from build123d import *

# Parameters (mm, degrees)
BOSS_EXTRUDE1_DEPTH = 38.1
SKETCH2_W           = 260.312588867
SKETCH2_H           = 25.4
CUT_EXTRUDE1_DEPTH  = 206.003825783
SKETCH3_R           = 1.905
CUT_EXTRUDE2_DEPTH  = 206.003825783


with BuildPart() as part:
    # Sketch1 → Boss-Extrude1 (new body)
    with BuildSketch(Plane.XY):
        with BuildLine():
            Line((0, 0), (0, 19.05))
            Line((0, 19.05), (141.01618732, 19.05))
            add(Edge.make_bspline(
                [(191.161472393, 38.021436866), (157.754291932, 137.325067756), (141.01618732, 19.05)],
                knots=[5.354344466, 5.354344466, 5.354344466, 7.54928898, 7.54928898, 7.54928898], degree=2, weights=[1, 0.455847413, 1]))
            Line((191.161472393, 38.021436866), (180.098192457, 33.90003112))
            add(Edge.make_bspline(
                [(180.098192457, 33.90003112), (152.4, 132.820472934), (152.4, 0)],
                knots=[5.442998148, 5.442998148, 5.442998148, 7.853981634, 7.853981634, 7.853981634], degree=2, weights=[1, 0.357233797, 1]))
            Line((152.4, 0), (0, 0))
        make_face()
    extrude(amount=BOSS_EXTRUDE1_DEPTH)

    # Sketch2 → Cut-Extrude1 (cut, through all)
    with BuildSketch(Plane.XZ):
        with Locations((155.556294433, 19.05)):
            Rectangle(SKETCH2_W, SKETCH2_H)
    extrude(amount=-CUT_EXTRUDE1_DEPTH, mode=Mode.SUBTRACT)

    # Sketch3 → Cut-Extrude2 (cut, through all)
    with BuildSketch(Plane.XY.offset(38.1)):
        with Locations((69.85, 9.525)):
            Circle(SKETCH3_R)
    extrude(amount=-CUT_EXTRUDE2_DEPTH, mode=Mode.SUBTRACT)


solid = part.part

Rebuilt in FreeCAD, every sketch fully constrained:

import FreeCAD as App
import Part
import Sketcher
Q = App.Units.Quantity


def add_polygon(sketch, points):
    """Adds a closed chain of lines whose ends are joined by coincident constraints."""
    first, n = sketch.GeometryCount, len(points)
    for a, b in zip(points, points[1:] + points[:1]):
        sketch.addGeometry(Part.LineSegment(App.Vector(*a, 0), App.Vector(*b, 0)), False)
    for i in range(n):
        sketch.addConstraint(Sketcher.Constraint("Coincident", first + i, 2, first + (i + 1) % n, 1))

doc = App.newDocument("Part")
body = doc.addObject("PartDesign::Body", "Body")

# Sketch on XY plane
sketch1 = body.newObject("Sketcher::SketchObject", "Sketch")
sketch1.AttachmentSupport = (doc.getObject("XY_Plane"), [""])
sketch1.MapMode = "FlatFace"
sketch1.addGeometry([
    Part.LineSegment(App.Vector(0, 19.05, 0), App.Vector(0, 0, 0)),  # 0
    Part.LineSegment(App.Vector(0, 0, 0), App.Vector(152.4, 0, 0)),  # 1
    Part.BSplineCurve([App.Vector(180.098192, 33.900031, 0), App.Vector(152.4, 132.820473, 0), App.Vector(152.4, 0, 0)], [3, 3], [5.442998148, 7.853981634], False, 2, [1, 0.357233797, 1], False),  # 2
    Part.LineSegment(App.Vector(180.098192, 33.900031, 0), App.Vector(191.161472, 38.021437, 0)),  # 3
    Part.BSplineCurve([App.Vector(191.161472, 38.021437, 0), App.Vector(157.754292, 137.325068, 0), App.Vector(141.016187, 19.05, 0)], [3, 3], [5.354344466, 7.54928898], False, 2, [1, 0.455847413, 1], False),  # 4
    Part.LineSegment(App.Vector(141.016187, 19.05, 0), App.Vector(0, 19.05, 0)),  # 5
], False)
sketch1.addConstraint([
    Sketcher.Constraint("Block", 2),
    Sketcher.Constraint("Block", 4),
    Sketcher.Constraint("Coincident", 0, 2, 1, 1),
    Sketcher.Constraint("Coincident", 1, 2, 2, 2),
    Sketcher.Constraint("Coincident", 2, 1, 3, 1),
    Sketcher.Constraint("Coincident", 3, 2, 4, 1),
    Sketcher.Constraint("Coincident", 4, 2, 5, 1),
    Sketcher.Constraint("Coincident", 5, 2, 0, 1),
    Sketcher.Constraint("Vertical", 0),
    Sketcher.Constraint("Horizontal", 1),
    Sketcher.Constraint("Horizontal", 5),
    Sketcher.Constraint("PointOnObject", 5, 2, -2),
])
pad1 = body.newObject("PartDesign::Pad", "Pad")
pad1.Profile = sketch1
pad1.Length = Q("1.5 in")

# Sketch on XZ plane
sketch2 = body.newObject("Sketcher::SketchObject", "Sketch001")
sketch2.AttachmentSupport = (doc.getObject("XZ_Plane"), [""])
sketch2.MapMode = "FlatFace"
add_polygon(sketch2, [(25, 32), (25, 6), (286, 6), (286, 32)])  # lines 0-3
sketch2.addConstraint([
    Sketcher.Constraint("Vertical", 0),
    Sketcher.Constraint("Horizontal", 1),
    Sketcher.Constraint("Vertical", 2),
    Sketcher.Constraint("Horizontal", 3),
    Sketcher.Constraint("DistanceY", 0, 2, 0, 1, Q("1 in")),
    Sketcher.Constraint("DistanceX", -1, 1, 0, 2, Q("1 in")),
    Sketcher.Constraint("DistanceY", -1, 1, 0, 2, Q("0.25 in")),
    Sketcher.Constraint("DistanceX", 1, 1, 1, 2, 260.312589),
])
pocket1 = body.newObject("PartDesign::Pocket", "Pocket")
pocket1.Profile = sketch2
pocket1.Type = "ThroughAll"

# Sketch on XY plane
sketch3 = body.newObject("Sketcher::SketchObject", "Sketch002")
sketch3.AttachmentSupport = (doc.getObject("XY_Plane"), [""])
sketch3.MapMode = "FlatFace"
sketch3.AttachmentOffset = App.Placement(App.Vector(0, 0, 1.5 * 25.4), App.Rotation())
sketch3.addGeometry(Part.Circle(App.Vector(69.8, 9.5, 0), App.Vector(0, 0, 1), 1.9), False)
sketch3.addConstraint([
    Sketcher.Constraint("Diameter", 0, Q("0.15 in")),
    Sketcher.Constraint("DistanceX", -1, 1, 0, 3, Q("2.75 in")),
    Sketcher.Constraint("DistanceY", -1, 1, 0, 3, Q("0.375 in")),
])
pocket2 = body.newObject("PartDesign::Pocket", "Pocket001")
pocket2.Profile = sketch3
pocket2.Type = "ThroughAll"

doc.recompute()
